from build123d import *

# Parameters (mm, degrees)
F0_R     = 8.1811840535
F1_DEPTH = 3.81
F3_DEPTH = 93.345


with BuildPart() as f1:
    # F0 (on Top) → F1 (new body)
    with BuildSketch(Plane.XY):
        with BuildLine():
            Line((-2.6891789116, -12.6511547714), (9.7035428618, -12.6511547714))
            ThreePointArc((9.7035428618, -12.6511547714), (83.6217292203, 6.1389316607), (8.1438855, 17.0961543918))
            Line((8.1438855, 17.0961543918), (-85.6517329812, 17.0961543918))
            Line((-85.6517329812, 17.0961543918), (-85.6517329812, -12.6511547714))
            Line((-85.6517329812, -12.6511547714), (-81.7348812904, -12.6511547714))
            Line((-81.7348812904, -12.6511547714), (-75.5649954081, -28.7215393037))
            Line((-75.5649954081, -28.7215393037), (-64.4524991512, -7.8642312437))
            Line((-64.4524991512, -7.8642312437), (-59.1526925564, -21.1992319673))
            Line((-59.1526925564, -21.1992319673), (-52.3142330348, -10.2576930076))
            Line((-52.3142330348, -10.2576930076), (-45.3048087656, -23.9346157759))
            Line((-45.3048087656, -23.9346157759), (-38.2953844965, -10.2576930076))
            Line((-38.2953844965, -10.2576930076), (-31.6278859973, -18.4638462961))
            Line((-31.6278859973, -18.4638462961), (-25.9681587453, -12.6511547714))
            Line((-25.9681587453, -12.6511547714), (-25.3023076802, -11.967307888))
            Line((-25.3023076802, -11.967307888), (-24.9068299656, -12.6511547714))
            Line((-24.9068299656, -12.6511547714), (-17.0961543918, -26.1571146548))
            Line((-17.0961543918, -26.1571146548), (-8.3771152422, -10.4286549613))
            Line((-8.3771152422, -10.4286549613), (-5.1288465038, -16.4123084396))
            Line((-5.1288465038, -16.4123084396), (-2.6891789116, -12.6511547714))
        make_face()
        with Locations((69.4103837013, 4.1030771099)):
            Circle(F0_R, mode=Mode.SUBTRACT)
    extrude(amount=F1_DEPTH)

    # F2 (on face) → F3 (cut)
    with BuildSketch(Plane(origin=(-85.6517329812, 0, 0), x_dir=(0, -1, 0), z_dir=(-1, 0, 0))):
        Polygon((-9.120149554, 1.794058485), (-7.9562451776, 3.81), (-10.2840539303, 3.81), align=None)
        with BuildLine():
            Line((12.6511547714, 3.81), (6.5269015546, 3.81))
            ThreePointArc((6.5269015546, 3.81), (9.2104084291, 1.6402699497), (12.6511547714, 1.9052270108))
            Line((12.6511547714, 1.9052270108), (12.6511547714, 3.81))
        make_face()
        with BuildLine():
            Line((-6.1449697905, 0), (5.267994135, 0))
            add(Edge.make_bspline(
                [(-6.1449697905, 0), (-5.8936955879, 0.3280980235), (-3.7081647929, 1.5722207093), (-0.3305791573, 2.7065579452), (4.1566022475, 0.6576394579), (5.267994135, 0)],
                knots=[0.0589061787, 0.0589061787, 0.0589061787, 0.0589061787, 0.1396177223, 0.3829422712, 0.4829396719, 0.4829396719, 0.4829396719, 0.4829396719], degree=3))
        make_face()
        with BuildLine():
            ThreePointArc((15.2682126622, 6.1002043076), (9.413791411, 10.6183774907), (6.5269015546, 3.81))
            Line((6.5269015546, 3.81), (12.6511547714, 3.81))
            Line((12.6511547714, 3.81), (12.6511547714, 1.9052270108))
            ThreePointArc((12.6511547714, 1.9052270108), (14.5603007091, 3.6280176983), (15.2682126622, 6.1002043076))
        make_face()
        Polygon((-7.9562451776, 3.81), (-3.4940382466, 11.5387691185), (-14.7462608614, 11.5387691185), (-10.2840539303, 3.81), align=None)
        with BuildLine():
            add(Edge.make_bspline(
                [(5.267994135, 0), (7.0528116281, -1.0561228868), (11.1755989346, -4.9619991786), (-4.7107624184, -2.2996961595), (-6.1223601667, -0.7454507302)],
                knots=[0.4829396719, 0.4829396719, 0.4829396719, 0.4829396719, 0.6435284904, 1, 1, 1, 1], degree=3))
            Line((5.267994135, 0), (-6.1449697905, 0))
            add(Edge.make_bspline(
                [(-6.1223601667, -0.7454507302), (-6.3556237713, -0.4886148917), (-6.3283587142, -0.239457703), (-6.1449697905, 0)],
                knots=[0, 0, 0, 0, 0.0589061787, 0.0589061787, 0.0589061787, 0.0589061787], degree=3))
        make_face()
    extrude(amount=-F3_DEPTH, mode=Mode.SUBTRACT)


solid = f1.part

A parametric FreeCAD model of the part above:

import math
import FreeCAD as App
import Part
import Sketcher
Q = App.Units.Quantity

doc = App.newDocument("Part")
params = doc.addObject("Spreadsheet::Sheet", "Params")
for row, (alias, value) in enumerate([
    ("pad1_length", "0.15 in"),
    ("pocket1_length", "3.675 in"),
], start=1):
    params.set(f"A{row}", alias)
    params.set(f"B{row}", "=" + value)
    params.setAlias(f"B{row}", alias)

body = doc.addObject("PartDesign::Body", "Body")

sketch1 = body.newObject("Sketcher::SketchObject", "Sketch")
sketch1.AttachmentSupport = (doc.getObject("XY_Plane"), [""])
sketch1.MapMode = "FlatFace"
sketch1.addGeometry(Part.LineSegment(App.Vector(-2.689179, -12.651155, 0), App.Vector(9.703543, -12.651155, 0)), False)
sketch1.addGeometry(Part.ArcOfCircle(Part.Circle(App.Vector(44.791922, 4.103077, 0), App.Vector(0, 0, 1), 38.883141), math.radians(-154.476148), math.radians(160.478711)), False)
sketch1.addGeometry(Part.LineSegment(App.Vector(8.143885, 17.096154, 0), App.Vector(-85.651733, 17.096154, 0)), False)
sketch1.addGeometry(Part.LineSegment(App.Vector(-85.651733, 17.096154, 0), App.Vector(-85.651733, -12.651155, 0)), False)
sketch1.addGeometry(Part.LineSegment(App.Vector(-85.651733, -12.651155, 0), App.Vector(-81.734881, -12.651155, 0)), False)
sketch1.addGeometry(Part.LineSegment(App.Vector(-81.734881, -12.651155, 0), App.Vector(-75.564995, -28.721539, 0)), False)
sketch1.addGeometry(Part.LineSegment(App.Vector(-75.564995, -28.721539, 0), App.Vector(-64.452499, -7.864231, 0)), False)
sketch1.addGeometry(Part.LineSegment(App.Vector(-64.452499, -7.864231, 0), App.Vector(-59.152693, -21.199232, 0)), False)
sketch1.addGeometry(Part.LineSegment(App.Vector(-59.152693, -21.199232, 0), App.Vector(-52.314233, -10.257693, 0)), False)
sketch1.addGeometry(Part.LineSegment(App.Vector(-52.314233, -10.257693, 0), App.Vector(-45.304809, -23.934616, 0)), False)
sketch1.addGeometry(Part.LineSegment(App.Vector(-45.304809, -23.934616, 0), App.Vector(-38.295384, -10.257693, 0)), False)
sketch1.addGeometry(Part.LineSegment(App.Vector(-38.295384, -10.257693, 0), App.Vector(-31.627886, -18.463846, 0)), False)
sketch1.addGeometry(Part.LineSegment(App.Vector(-31.627886, -18.463846, 0), App.Vector(-25.968159, -12.651155, 0)), False)
sketch1.addGeometry(Part.LineSegment(App.Vector(-25.968159, -12.651155, 0), App.Vector(-25.302308, -11.967308, 0)), False)
sketch1.addGeometry(Part.LineSegment(App.Vector(-25.302308, -11.967308, 0), App.Vector(-24.90683, -12.651155, 0)), False)
sketch1.addGeometry(Part.LineSegment(App.Vector(-24.90683, -12.651155, 0), App.Vector(-17.096154, -26.157115, 0)), False)
sketch1.addGeometry(Part.LineSegment(App.Vector(-17.096154, -26.157115, 0), App.Vector(-8.377115, -10.428655, 0)), False)
sketch1.addGeometry(Part.LineSegment(App.Vector(-8.377115, -10.428655, 0), App.Vector(-5.128847, -16.412308, 0)), False)
sketch1.addGeometry(Part.LineSegment(App.Vector(-5.128847, -16.412308, 0), App.Vector(-2.689179, -12.651155, 0)), False)
sketch1.addGeometry(Part.Circle(App.Vector(69.410384, 4.103077, 0), App.Vector(0, 0, 1), 8.181184), False)
sketch1.addConstraint(Sketcher.Constraint("Coincident", 0, 2, 1, 1))
sketch1.addConstraint(Sketcher.Constraint("Coincident", 1, 2, 2, 1))
sketch1.addConstraint(Sketcher.Constraint("Coincident", 2, 2, 3, 1))
sketch1.addConstraint(Sketcher.Constraint("Coincident", 3, 2, 4, 1))
sketch1.addConstraint(Sketcher.Constraint("Coincident", 4, 2, 5, 1))
sketch1.addConstraint(Sketcher.Constraint("Coincident", 5, 2, 6, 1))
sketch1.addConstraint(Sketcher.Constraint("Coincident", 6, 2, 7, 1))
sketch1.addConstraint(Sketcher.Constraint("Coincident", 7, 2, 8, 1))
sketch1.addConstraint(Sketcher.Constraint("Coincident", 8, 2, 9, 1))
sketch1.addConstraint(Sketcher.Constraint("Coincident", 9, 2, 10, 1))
sketch1.addConstraint(Sketcher.Constraint("Coincident", 10, 2, 11, 1))
sketch1.addConstraint(Sketcher.Constraint("Coincident", 11, 2, 12, 1))
sketch1.addConstraint(Sketcher.Constraint("Coincident", 12, 2, 13, 1))
sketch1.addConstraint(Sketcher.Constraint("Coincident", 13, 2, 14, 1))
sketch1.addConstraint(Sketcher.Constraint("Coincident", 14, 2, 15, 1))
sketch1.addConstraint(Sketcher.Constraint("Coincident", 15, 2, 16, 1))
sketch1.addConstraint(Sketcher.Constraint("Coincident", 16, 2, 17, 1))
sketch1.addConstraint(Sketcher.Constraint("Coincident", 17, 2, 18, 1))
sketch1.addConstraint(Sketcher.Constraint("Coincident", 18, 2, 0, 1))
sketch1.addConstraint(Sketcher.Constraint("Horizontal", 0))
sketch1.addConstraint(Sketcher.Constraint("Horizontal", 2))
sketch1.addConstraint(Sketcher.Constraint("Vertical", 3))
sketch1.addConstraint(Sketcher.Constraint("Horizontal", 4))
sketch1.addConstraint(Sketcher.Constraint("Diameter", 19, 16.362368))
sketch1.addConstraint(Sketcher.Constraint("DistanceX", 5, 2, -1, 1, Q("2.9749998 in")))
sketch1.addConstraint(Sketcher.Constraint("Radius", 1, 38.883141))
sketch1.addConstraint(Sketcher.Constraint("DistanceX", 5, 2, 6, 2, Q("0.4374999 in")))
sketch1.addConstraint(Sketcher.Constraint("DistanceY", 7, 2, 6, 2, Q("0.525 in")))
sketch1.addConstraint(Sketcher.Constraint("DistanceX", 3, 2, 8, 2, Q("1.3125 in")))
sketch1.addConstraint(Sketcher.Constraint("DistanceY", 17, 2, 13, 2, Q("0.175 in")))
sketch1.addConstraint(Sketcher.Constraint("DistanceX", 10, 2, 11, 2, Q("0.2624999 in")))
sketch1.addConstraint(Sketcher.Constraint("DistanceX", 9, 2, 13, 2, Q("0.7875 in")))
sketch1.addConstraint(Sketcher.Constraint("DistanceY", 14, 2, 16, 2, Q("0.0875 in")))
sketch1.addConstraint(Sketcher.Constraint("DistanceY", 12, 2, 16, 2, Q("0.0875 in")))
sketch1.addConstraint(Sketcher.Constraint("DistanceY", 0, 2, 16, 2, Q("0.0875 in")))
sketch1.addConstraint(Sketcher.Constraint("DistanceX", 0, 1, 0, 2, 12.392722))
sketch1.addConstraint(Sketcher.Constraint("DistanceX", 2, 2, 2, 1, 93.795618))
sketch1.addConstraint(Sketcher.Constraint("DistanceX", 4, 1, 4, 2, 3.916852))
sketch1.addConstraint(Sketcher.Constraint("DistanceY", 3, 2, 3, 1, 29.747309))
sketch1.addConstraint(Sketcher.Constraint("DistanceX", 1, 2, 19, 3, 61.266498))
sketch1.addConstraint(Sketcher.Constraint("Distance", 6, 23.632919))
sketch1.addConstraint(Sketcher.Constraint("Distance", 7, 14.349571))
sketch1.addConstraint(Sketcher.Constraint("DistanceX", -1, 1, 1, 3, 44.791922))
sketch1.addConstraint(Sketcher.Constraint("DistanceX", 4, 2, -1, 1, 81.734881))
sketch1.addConstraint(Sketcher.Constraint("DistanceY", 5, 2, -1, 1, 28.721539))
sketch1.addConstraint(Sketcher.Constraint("DistanceX", 9, 2, -1, 1, 45.304809))
sketch1.addConstraint(Sketcher.Constraint("DistanceX", 12, 2, -1, 1, 25.968159))
sketch1.addConstraint(Sketcher.Constraint("DistanceX", 14, 2, -1, 1, 24.90683))
sketch1.addConstraint(Sketcher.Constraint("DistanceY", 17, 2, -1, 1, 16.412308))
sketch1.addConstraint(Sketcher.Constraint("DistanceX", 18, 2, -1, 1, 2.689179))
sketch1.addConstraint(Sketcher.Constraint("DistanceY", 0, 2, 19, 3, 16.754232))
sketch1.addConstraint(Sketcher.Constraint("DistanceY", 8, 2, 6, 2, 2.393462))
sketch1.addConstraint(Sketcher.Constraint("DistanceY", 4, 2, 8, 2, 2.393462))
sketch1.addConstraint(Sketcher.Constraint("DistanceY", 9, 2, 4, 2, 11.283461))
sketch1.addConstraint(Sketcher.Constraint("DistanceX", 8, 2, 10, 2, 14.018849))
sketch1.addConstraint(Sketcher.Constraint("DistanceY", 7, 2, 10, 2, 10.941539))
sketch1.addConstraint(Sketcher.Constraint("DistanceY", 9, 2, 11, 2, 5.470769))
sketch1.addConstraint(Sketcher.Constraint("DistanceY", 15, 2, 14, 2, 13.50596))
sketch1.addConstraint(Sketcher.Constraint("DistanceX", 11, 2, 15, 2, 14.531732))
sketch1.addConstraint(Sketcher.Constraint("DistanceX", 15, 2, 16, 2, 8.719039))
sketch1.addConstraint(Sketcher.Constraint("DistanceX", 16, 2, 17, 2, 3.248269))
pad1 = body.newObject("PartDesign::Pad", "Pad")
pad1.Profile = sketch1
pad1.setExpression("Length", "Params.pad1_length")

sketch2 = body.newObject("Sketcher::SketchObject", "Sketch001")
sketch2.AttachmentSupport = (doc.getObject("YZ_Plane"), [""])
sketch2.MapMode = "FlatFace"
sketch2.AttachmentOffset = App.Placement(App.Vector(0, 0, -85.651733), App.Rotation())
sketch2.addGeometry(Part.LineSegment(App.Vector(9.12015, 1.794058, 0), App.Vector(7.956245, 3.81, 0)), False)
sketch2.addGeometry(Part.LineSegment(App.Vector(7.956245, 3.81, 0), App.Vector(3.494038, 11.538769, 0)), False)
sketch2.addGeometry(Part.LineSegment(App.Vector(3.494038, 11.538769, 0), App.Vector(14.746261, 11.538769, 0)), False)
sketch2.addGeometry(Part.LineSegment(App.Vector(14.746261, 11.538769, 0), App.Vector(10.284054, 3.81, 0)), False)
sketch2.addGeometry(Part.LineSegment(App.Vector(10.284054, 3.81, 0), App.Vector(9.12015, 1.794058, 0)), False)
sketch2.addGeometry(Part.ArcOfCircle(Part.Circle(App.Vector(-10.597543, 6.100204, 0), App.Vector(0, 0, 1), 4.67067), math.radians(-116.083627), math.radians(-29.362763)), False)
sketch2.addGeometry(Part.ArcOfCircle(Part.Circle(App.Vector(-10.597543, 6.100204, 0), App.Vector(0, 0, 1), 4.67067), math.radians(180), math.radians(243.916373)), False)
sketch2.addGeometry(Part.ArcOfCircle(Part.Circle(App.Vector(-10.597543, 6.100204, 0), App.Vector(0, 0, 1), 4.67067), math.radians(-29.362763), math.radians(180)), False)
sketch2.addGeometry(Part.BSplineCurve([App.Vector(6.14497, 0, 0), App.Vector(5.893696, 0.328098, 0), App.Vector(3.708165, 1.572221, 0), App.Vector(0.330579, 2.706558, 0), App.Vector(-4.156602, 0.657639, 0), App.Vector(-5.267994, 0, 0)], [4, 1, 1, 4], [0.058906179, 0.139617722, 0.382942271, 0.482939672], False, 3, [1, 1, 1, 1, 1, 1], False), False)
sketch2.addGeometry(Part.BSplineCurve([App.Vector(6.12236, -0.745451, 0), App.Vector(6.355624, -0.488615, 0), App.Vector(6.328359, -0.239458, 0), App.Vector(6.14497, 0, 0)], [4, 4], [0, 0.058906179], False, 3, [1, 1, 1, 1], False), False)
sketch2.addGeometry(Part.BSplineCurve([App.Vector(-5.267994, 0, 0), App.Vector(-7.052812, -1.056123, 0), App.Vector(-11.175599, -4.961999, 0), App.Vector(4.710762, -2.299696, 0), App.Vector(6.12236, -0.745451, 0)], [4, 1, 4], [0.482939672, 0.64352849, 1], False, 3, [1, 1, 1, 1, 1], False), False)
sketch2.addConstraint(Sketcher.Constraint("Block", 8))
sketch2.addConstraint(Sketcher.Constraint("Block", 9))
sketch2.addConstraint(Sketcher.Constraint("Block", 10))
sketch2.addConstraint(Sketcher.Constraint("Coincident", 0, 2, 1, 1))
sketch2.addConstraint(Sketcher.Constraint("Coincident", 1, 2, 2, 1))
sketch2.addConstraint(Sketcher.Constraint("Coincident", 2, 2, 3, 1))
sketch2.addConstraint(Sketcher.Constraint("Coincident", 3, 2, 4, 1))
sketch2.addConstraint(Sketcher.Constraint("Coincident", 4, 2, 0, 1))
sketch2.addConstraint(Sketcher.Constraint("Tangent", 5, 1, 6, 2))
sketch2.addConstraint(Sketcher.Constraint("Tangent", 6, 1, 7, 2))
sketch2.addConstraint(Sketcher.Constraint("Tangent", 7, 1, 5, 2))
sketch2.addConstraint(Sketcher.Constraint("Horizontal", 2))
sketch2.addConstraint(Sketcher.Constraint("Parallel", 0, 1))
sketch2.addConstraint(Sketcher.Constraint("Parallel", 3, 4))
sketch2.addConstraint(Sketcher.Constraint("Horizontal", 0, 2, 3, 2))
sketch2.addConstraint(Sketcher.Constraint("Horizontal", 7, 3, 6, 1))
sketch2.addConstraint(Sketcher.Constraint("Horizontal", 3, 2, 7, 1))
sketch2.addConstraint(Sketcher.Constraint("Equal", 1, 3))
sketch2.addConstraint(Sketcher.Constraint("Angle", 0, Q("120 deg")))
sketch2.addConstraint(Sketcher.Constraint("DistanceY", -1, 1, 0, 2, Q("0.15 in")))
sketch2.addConstraint(Sketcher.Constraint("Radius", 5, 4.67067))
sketch2.addConstraint(Sketcher.Constraint("DistanceX", 7, 1, -1, 1, 6.526902))
sketch2.addConstraint(Sketcher.Constraint("DistanceX", 5, 1, 0, 2, 20.6074))
sketch2.addConstraint(Sketcher.Constraint("Distance", 0, 2.327809))
sketch2.addConstraint(Sketcher.Constraint("DistanceX", 2, 1, 2, 2, 11.252223))
sketch2.addConstraint(Sketcher.Constraint("DistanceX", -1, 1, 1, 2, 3.494038))
sketch2.addConstraint(Sketcher.Constraint("DistanceX", 5, 3, 0, 2, 18.553788))
pocket1 = body.newObject("PartDesign::Pocket", "Pocket")
pocket1.Profile = sketch2
pocket1.setExpression("Length", "Params.pocket1_length")
pocket1.Reversed = True

doc.recompute()
